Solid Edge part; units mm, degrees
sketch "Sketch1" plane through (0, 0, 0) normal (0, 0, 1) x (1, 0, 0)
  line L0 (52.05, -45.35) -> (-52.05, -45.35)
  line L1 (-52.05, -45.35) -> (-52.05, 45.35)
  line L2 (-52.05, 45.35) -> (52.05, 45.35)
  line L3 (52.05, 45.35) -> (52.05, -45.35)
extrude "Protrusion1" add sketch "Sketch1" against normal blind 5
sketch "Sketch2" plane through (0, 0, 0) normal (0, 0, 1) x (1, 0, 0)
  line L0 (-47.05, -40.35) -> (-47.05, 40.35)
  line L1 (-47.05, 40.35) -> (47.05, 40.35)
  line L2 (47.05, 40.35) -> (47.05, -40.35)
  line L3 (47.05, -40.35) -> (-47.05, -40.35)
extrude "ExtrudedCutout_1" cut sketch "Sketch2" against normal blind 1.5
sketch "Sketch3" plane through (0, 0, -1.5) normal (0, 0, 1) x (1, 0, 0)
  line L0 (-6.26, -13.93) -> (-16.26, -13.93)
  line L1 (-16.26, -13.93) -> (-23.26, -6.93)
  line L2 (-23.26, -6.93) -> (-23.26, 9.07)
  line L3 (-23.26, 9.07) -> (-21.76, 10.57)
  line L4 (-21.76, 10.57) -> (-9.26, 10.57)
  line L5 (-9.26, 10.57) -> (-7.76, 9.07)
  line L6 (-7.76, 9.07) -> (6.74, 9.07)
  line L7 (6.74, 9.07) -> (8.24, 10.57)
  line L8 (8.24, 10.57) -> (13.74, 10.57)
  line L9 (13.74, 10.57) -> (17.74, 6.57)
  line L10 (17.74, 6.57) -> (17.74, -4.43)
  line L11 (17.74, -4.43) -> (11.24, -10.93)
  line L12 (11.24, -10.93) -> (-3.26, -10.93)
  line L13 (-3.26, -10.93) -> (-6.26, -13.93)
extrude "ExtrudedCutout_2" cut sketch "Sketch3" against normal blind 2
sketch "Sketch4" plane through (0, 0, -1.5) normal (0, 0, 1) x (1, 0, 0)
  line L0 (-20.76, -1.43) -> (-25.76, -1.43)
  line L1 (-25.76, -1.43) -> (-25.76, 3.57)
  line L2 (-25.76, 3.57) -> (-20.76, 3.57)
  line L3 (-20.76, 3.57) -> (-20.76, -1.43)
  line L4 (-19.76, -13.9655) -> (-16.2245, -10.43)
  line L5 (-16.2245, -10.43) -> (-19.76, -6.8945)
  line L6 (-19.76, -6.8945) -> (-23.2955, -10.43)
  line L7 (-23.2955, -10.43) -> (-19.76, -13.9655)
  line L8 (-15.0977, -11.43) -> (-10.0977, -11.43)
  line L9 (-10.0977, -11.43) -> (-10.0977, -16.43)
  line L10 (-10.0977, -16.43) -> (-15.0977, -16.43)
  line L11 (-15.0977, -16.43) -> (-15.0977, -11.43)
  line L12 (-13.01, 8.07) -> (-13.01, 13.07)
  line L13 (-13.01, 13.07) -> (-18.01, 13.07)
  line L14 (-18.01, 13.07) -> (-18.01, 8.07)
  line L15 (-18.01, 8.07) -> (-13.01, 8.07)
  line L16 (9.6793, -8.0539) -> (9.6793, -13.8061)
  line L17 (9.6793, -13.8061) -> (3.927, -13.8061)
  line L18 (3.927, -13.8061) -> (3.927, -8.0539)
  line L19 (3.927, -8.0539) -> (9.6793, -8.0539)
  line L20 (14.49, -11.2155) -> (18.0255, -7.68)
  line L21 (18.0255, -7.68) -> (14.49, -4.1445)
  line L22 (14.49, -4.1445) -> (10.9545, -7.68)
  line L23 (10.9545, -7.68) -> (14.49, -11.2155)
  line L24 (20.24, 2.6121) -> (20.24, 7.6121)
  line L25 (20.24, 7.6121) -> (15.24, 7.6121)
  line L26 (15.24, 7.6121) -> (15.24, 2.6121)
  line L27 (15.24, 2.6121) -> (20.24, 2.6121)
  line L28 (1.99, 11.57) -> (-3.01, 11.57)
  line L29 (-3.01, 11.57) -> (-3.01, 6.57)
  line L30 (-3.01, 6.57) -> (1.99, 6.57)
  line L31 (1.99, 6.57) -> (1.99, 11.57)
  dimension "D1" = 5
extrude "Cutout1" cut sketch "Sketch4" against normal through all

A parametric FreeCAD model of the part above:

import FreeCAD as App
import Part
import Sketcher

V = App.Vector
Q = App.Units.Quantity

doc = App.newDocument("Part")
body = doc.addObject("PartDesign::Body", "Body")

# Sketch on XY plane
sketch1 = body.newObject("Sketcher::SketchObject", "Sketch")
sketch1.AttachmentSupport = (doc.getObject("XY_Plane"), [""])
sketch1.MapMode = "FlatFace"
sketch1.addGeometry([
    Part.LineSegment(V(-52, -45, 0), V(52, -45, 0)),
    Part.LineSegment(V(52, -45, 0), V(52, 45, 0)),
    Part.LineSegment(V(52, 45, 0), V(-52, 45, 0)),
    Part.LineSegment(V(-52, 45, 0), V(-52, -45, 0)),
], False)
sketch1.addConstraint([
    Sketcher.Constraint("Coincident", 0, 2, 1, 1),
    Sketcher.Constraint("Coincident", 1, 2, 2, 1),
    Sketcher.Constraint("Coincident", 2, 2, 3, 1),
    Sketcher.Constraint("Coincident", 3, 2, 0, 1),
    Sketcher.Constraint("Horizontal", 0),
    Sketcher.Constraint("Vertical", 1),
    Sketcher.Constraint("Horizontal", 2),
    Sketcher.Constraint("Vertical", 3),
    Sketcher.Constraint("Symmetric", 0, 2, 2, 2, -1, 1),
    Sketcher.Constraint("DistanceX", 0, 1, 0, 2, Q("104.1 mm")),
    Sketcher.Constraint("DistanceY", 1, 1, 1, 2, Q("90.7 mm")),
])
pad1 = body.newObject("PartDesign::Pad", "Pad")
pad1.Profile = sketch1
pad1.Length = 5
pad1.Reversed = True

# Sketch on XY plane
sketch2 = body.newObject("Sketcher::SketchObject", "Sketch001")
sketch2.AttachmentSupport = (doc.getObject("XY_Plane"), [""])
sketch2.MapMode = "FlatFace"
sketch2.addGeometry([
    Part.LineSegment(V(-47, 40, 0), V(-47, -40, 0)),
    Part.LineSegment(V(-47, -40, 0), V(47, -40, 0)),
    Part.LineSegment(V(47, -40, 0), V(47, 40, 0)),
    Part.LineSegment(V(47, 40, 0), V(-47, 40, 0)),
], False)
sketch2.addConstraint([
    Sketcher.Constraint("Coincident", 0, 2, 1, 1),
    Sketcher.Constraint("Coincident", 1, 2, 2, 1),
    Sketcher.Constraint("Coincident", 2, 2, 3, 1),
    Sketcher.Constraint("Coincident", 3, 2, 0, 1),
    Sketcher.Constraint("Vertical", 0),
    Sketcher.Constraint("Horizontal", 1),
    Sketcher.Constraint("Vertical", 2),
    Sketcher.Constraint("Horizontal", 3),
    Sketcher.Constraint("Symmetric", 0, 2, 2, 2, -1, 1),
    Sketcher.Constraint("DistanceX", 1, 1, 1, 2, Q("94.1 mm")),
    Sketcher.Constraint("DistanceY", 0, 2, 0, 1, Q("80.7 mm")),
])
pocket1 = body.newObject("PartDesign::Pocket", "Pocket")
pocket1.Profile = sketch2
pocket1.Length = 1.5

# Sketch on XY plane
sketch3 = body.newObject("Sketcher::SketchObject", "Sketch002")
sketch3.AttachmentSupport = (doc.getObject("XY_Plane"), [""])
sketch3.MapMode = "FlatFace"
sketch3.AttachmentOffset = App.Placement(V(0, 0, -1.5), App.Rotation())
sketch3.addGeometry([
    Part.LineSegment(V(-16.3, -13.9, 0), V(-6.3, -13.9, 0)),  # 0
    Part.LineSegment(V(-6.3, -13.9, 0), V(-3.3, -10.9, 0)),  # 1
    Part.LineSegment(V(-3.3, -10.9, 0), V(11.2, -10.9, 0)),  # 2
    Part.LineSegment(V(11.2, -10.9, 0), V(17.7, -4.4, 0)),  # 3
    Part.LineSegment(V(17.7, -4.4, 0), V(17.7, 6.6, 0)),  # 4
    Part.LineSegment(V(17.7, 6.6, 0), V(13.7, 10.6, 0)),  # 5
    Part.LineSegment(V(13.7, 10.6, 0), V(8.2, 10.6, 0)),  # 6
    Part.LineSegment(V(8.2, 10.6, 0), V(6.7, 9.1, 0)),  # 7
    Part.LineSegment(V(6.7, 9.1, 0), V(-7.8, 9.1, 0)),  # 8
    Part.LineSegment(V(-7.8, 9.1, 0), V(-9.3, 10.6, 0)),  # 9
    Part.LineSegment(V(-9.3, 10.6, 0), V(-21.8, 10.6, 0)),  # 10
    Part.LineSegment(V(-21.8, 10.6, 0), V(-23.3, 9.1, 0)),  # 11
    Part.LineSegment(V(-23.3, 9.1, 0), V(-23.3, -6.9, 0)),  # 12
    Part.LineSegment(V(-23.3, -6.9, 0), V(-16.3, -13.9, 0)),  # 13
], False)
sketch3.addConstraint([
    Sketcher.Constraint("Coincident", 0, 2, 1, 1),
    Sketcher.Constraint("Coincident", 1, 2, 2, 1),
    Sketcher.Constraint("Coincident", 2, 2, 3, 1),
    Sketcher.Constraint("Coincident", 3, 2, 4, 1),
    Sketcher.Constraint("Coincident", 4, 2, 5, 1),
    Sketcher.Constraint("Coincident", 5, 2, 6, 1),
    Sketcher.Constraint("Coincident", 6, 2, 7, 1),
    Sketcher.Constraint("Coincident", 7, 2, 8, 1),
    Sketcher.Constraint("Coincident", 8, 2, 9, 1),
    Sketcher.Constraint("Coincident", 9, 2, 10, 1),
    Sketcher.Constraint("Coincident", 10, 2, 11, 1),
    Sketcher.Constraint("Coincident", 11, 2, 12, 1),
    Sketcher.Constraint("Coincident", 12, 2, 13, 1),
    Sketcher.Constraint("Coincident", 13, 2, 0, 1),
    Sketcher.Constraint("Horizontal", 0),
    Sketcher.Constraint("Horizontal", 2),
    Sketcher.Constraint("Vertical", 4),
    Sketcher.Constraint("Horizontal", 6),
    Sketcher.Constraint("Horizontal", 8),
    Sketcher.Constraint("Horizontal", 10),
    Sketcher.Constraint("Vertical", 12),
    Sketcher.Constraint("Parallel", 1, 3),
    Sketcher.Constraint("Perpendicular", 3, 5),
    Sketcher.Constraint("Perpendicular", 5, 7),
    Sketcher.Constraint("Perpendicular", 7, 9),
    Sketcher.Constraint("Perpendicular", 9, 11),
    Sketcher.Constraint("Perpendicular", 11, 13),
    Sketcher.Constraint("Horizontal", 6, 2, 9, 2),
    Sketcher.Constraint("Horizontal", 8, 2, 11, 2),
    Sketcher.Constraint("Equal", 2, 8),
    Sketcher.Constraint("Equal", 7, 9),
    Sketcher.Constraint("DistanceX", 0, 1, 0, 2, Q("10 mm")),
    Sketcher.Constraint("DistanceY", 4, 1, 4, 2, Q("11 mm")),
    Sketcher.Constraint("DistanceY", 12, 2, 12, 1, Q("16 mm")),
    Sketcher.Constraint("DistanceX", 2, 1, 2, 2, Q("14.5 mm")),
    Sketcher.Constraint("DistanceX", 6, 2, 6, 1, Q("5.5 mm")),
    Sketcher.Constraint("DistanceX", 10, 2, 10, 1, Q("12.5 mm")),
    Sketcher.Constraint("DistanceX", 0, 2, 1, 2, Q("3 mm")),
    Sketcher.Constraint("DistanceX", 1, 2, 3, 2, Q("21 mm")),
    Sketcher.Constraint("DistanceX", 5, 2, 4, 2, Q("4 mm")),
    Sketcher.Constraint("DistanceX", 0, 2, -1, 1, Q("6.26 mm")),
    Sketcher.Constraint("DistanceY", 0, 2, -1, 1, Q("13.93 mm")),
])
pocket2 = body.newObject("PartDesign::Pocket", "Pocket001")
pocket2.Profile = sketch3
pocket2.Length = 2

# Sketch on XY plane
sketch4 = body.newObject("Sketcher::SketchObject", "Sketch003")
sketch4.AttachmentSupport = (doc.getObject("XY_Plane"), [""])
sketch4.MapMode = "FlatFace"
sketch4.AttachmentOffset = App.Placement(V(0, 0, -1.5), App.Rotation())
sketch4.addGeometry([
    Part.LineSegment(V(-25.8, -1.4, 0), V(-20.8, -1.4, 0)),  # 0
    Part.LineSegment(V(-20.8, -1.4, 0), V(-20.8, 3.6, 0)),  # 1
    Part.LineSegment(V(-20.8, 3.6, 0), V(-25.8, 3.6, 0)),  # 2
    Part.LineSegment(V(-25.8, 3.6, 0), V(-25.8, -1.4, 0)),  # 3
    Part.LineSegment(V(-23.3, -10.4, 0), V(-19.8, -14, 0)),  # 4
    Part.LineSegment(V(-19.8, -14, 0), V(-16.2, -10.4, 0)),  # 5
    Part.LineSegment(V(-16.2, -10.4, 0), V(-19.8, -6.9, 0)),  # 6
    Part.LineSegment(V(-19.8, -6.9, 0), V(-23.3, -10.4, 0)),  # 7
    Part.LineSegment(V(-10.1, -11.4, 0), V(-15.1, -11.4, 0)),  # 8
    Part.LineSegment(V(-15.1, -11.4, 0), V(-15.1, -16.4, 0)),  # 9
    Part.LineSegment(V(-15.1, -16.4, 0), V(-10.1, -16.4, 0)),  # 10
    Part.LineSegment(V(-10.1, -16.4, 0), V(-10.1, -11.4, 0)),  # 11
    Part.LineSegment(V(-18, 8.1, 0), V(-13, 8.1, 0)),  # 12
    Part.LineSegment(V(-13, 8.1, 0), V(-13, 13.1, 0)),  # 13
    Part.LineSegment(V(-13, 13.1, 0), V(-18, 13.1, 0)),  # 14
    Part.LineSegment(V(-18, 13.1, 0), V(-18, 8.1, 0)),  # 15
    Part.LineSegment(V(9.7, -13.8, 0), V(9.7, -8.1, 0)),  # 16
    Part.LineSegment(V(9.7, -8.1, 0), V(3.9, -8.1, 0)),  # 17
    Part.LineSegment(V(3.9, -8.1, 0), V(3.9, -13.8, 0)),  # 18
    Part.LineSegment(V(3.9, -13.8, 0), V(9.7, -13.8, 0)),  # 19
    Part.LineSegment(V(11, -7.7, 0), V(14.5, -11.2, 0)),  # 20
    Part.LineSegment(V(14.5, -11.2, 0), V(18, -7.7, 0)),  # 21
    Part.LineSegment(V(18, -7.7, 0), V(14.5, -4.1, 0)),  # 22
    Part.LineSegment(V(14.5, -4.1, 0), V(11, -7.7, 0)),  # 23
    Part.LineSegment(V(15.2, 2.6, 0), V(20.2, 2.6, 0)),  # 24
    Part.LineSegment(V(20.2, 2.6, 0), V(20.2, 7.6, 0)),  # 25
    Part.LineSegment(V(20.2, 7.6, 0), V(15.2, 7.6, 0)),  # 26
    Part.LineSegment(V(15.2, 7.6, 0), V(15.2, 2.6, 0)),  # 27
    Part.LineSegment(V(2, 6.6, 0), V(2, 11.6, 0)),  # 28
    Part.LineSegment(V(2, 11.6, 0), V(-3, 11.6, 0)),  # 29
    Part.LineSegment(V(-3, 11.6, 0), V(-3, 6.6, 0)),  # 30
    Part.LineSegment(V(-3, 6.6, 0), V(2, 6.6, 0)),  # 31
], False)
sketch4.addConstraint([
    Sketcher.Constraint("Coincident", 0, 2, 1, 1),
    Sketcher.Constraint("Coincident", 1, 2, 2, 1),
    Sketcher.Constraint("Coincident", 2, 2, 3, 1),
    Sketcher.Constraint("Coincident", 3, 2, 0, 1),
    Sketcher.Constraint("Coincident", 4, 2, 5, 1),
    Sketcher.Constraint("Coincident", 5, 2, 6, 1),
    Sketcher.Constraint("Coincident", 6, 2, 7, 1),
    Sketcher.Constraint("Coincident", 7, 2, 4, 1),
    Sketcher.Constraint("Coincident", 8, 2, 9, 1),
    Sketcher.Constraint("Coincident", 9, 2, 10, 1),
    Sketcher.Constraint("Coincident", 10, 2, 11, 1),
    Sketcher.Constraint("Coincident", 11, 2, 8, 1),
    Sketcher.Constraint("Coincident", 12, 2, 13, 1),
    Sketcher.Constraint("Coincident", 13, 2, 14, 1),
    Sketcher.Constraint("Coincident", 14, 2, 15, 1),
    Sketcher.Constraint("Coincident", 15, 2, 12, 1),
    Sketcher.Constraint("Coincident", 16, 2, 17, 1),
    Sketcher.Constraint("Coincident", 17, 2, 18, 1),
    Sketcher.Constraint("Coincident", 18, 2, 19, 1),
    Sketcher.Constraint("Coincident", 19, 2, 16, 1),
    Sketcher.Constraint("Coincident", 20, 2, 21, 1),
    Sketcher.Constraint("Coincident", 21, 2, 22, 1),
    Sketcher.Constraint("Coincident", 22, 2, 23, 1),
    Sketcher.Constraint("Coincident", 23, 2, 20, 1),
    Sketcher.Constraint("Coincident", 24, 2, 25, 1),
    Sketcher.Constraint("Coincident", 25, 2, 26, 1),
    Sketcher.Constraint("Coincident", 26, 2, 27, 1),
    Sketcher.Constraint("Coincident", 27, 2, 24, 1),
    Sketcher.Constraint("Coincident", 28, 2, 29, 1),
    Sketcher.Constraint("Coincident", 29, 2, 30, 1),
    Sketcher.Constraint("Coincident", 30, 2, 31, 1),
    Sketcher.Constraint("Coincident", 31, 2, 28, 1),
    Sketcher.Constraint("Horizontal", 0),
    Sketcher.Constraint("Vertical", 1),
    Sketcher.Constraint("Horizontal", 2),
    Sketcher.Constraint("Vertical", 3),
    Sketcher.Constraint("Horizontal", 8),
    Sketcher.Constraint("Vertical", 9),
    Sketcher.Constraint("Horizontal", 10),
    Sketcher.Constraint("Vertical", 11),
    Sketcher.Constraint("Horizontal", 12),
    Sketcher.Constraint("Vertical", 13),
    Sketcher.Constraint("Horizontal", 14),
    Sketcher.Constraint("Vertical", 15),
    Sketcher.Constraint("Vertical", 16),
    Sketcher.Constraint("Horizontal", 17),
    Sketcher.Constraint("Vertical", 18),
    Sketcher.Constraint("Horizontal", 19),
    Sketcher.Constraint("Horizontal", 24),
    Sketcher.Constraint("Vertical", 25),
    Sketcher.Constraint("Horizontal", 26),
    Sketcher.Constraint("Vertical", 27),
    Sketcher.Constraint("Vertical", 28),
    Sketcher.Constraint("Horizontal", 29),
    Sketcher.Constraint("Vertical", 30),
    Sketcher.Constraint("Horizontal", 31),
    Sketcher.Constraint("Perpendicular", 4, 5),
    Sketcher.Constraint("Perpendicular", 5, 6),
    Sketcher.Constraint("Perpendicular", 6, 7),
    Sketcher.Constraint("Perpendicular", 7, 20),
    Sketcher.Constraint("Perpendicular", 20, 21),
    Sketcher.Constraint("Perpendicular", 21, 22),
    Sketcher.Constraint("Perpendicular", 22, 23),
    Sketcher.Constraint("Horizontal", 5, 2, 7, 2),
    Sketcher.Constraint("Horizontal", 21, 2, 23, 2),
    Sketcher.Constraint("Vertical", 4, 2, 6, 2),
    Sketcher.Constraint("Equal", 2, 8),
    Sketcher.Constraint("Equal", 10, 12),
    Sketcher.Constraint("Equal", 14, 24),
    Sketcher.Constraint("Equal", 26, 29),
    Sketcher.Constraint("Equal", 31, 1),
    Sketcher.Constraint("Equal", 3, 9),
    Sketcher.Constraint("Equal", 11, 13),
    Sketcher.Constraint("Equal", 19, 16),
    Sketcher.Constraint("Equal", 15, 25),
    Sketcher.Constraint("Equal", 27, 28),
    Sketcher.Constraint("Equal", 7, 20),
    Sketcher.Constraint("DistanceX", 0, 1, 0, 2, Q("5 mm")),
    Sketcher.Constraint("Distance", 4, Q("5 mm")),
    Sketcher.Constraint("DistanceX", 0, 2, 4, 2, Q("1 mm")),
    Sketcher.Constraint("DistanceY", 5, 2, 0, 2, Q("9 mm")),
    Sketcher.Constraint("DistanceY", 8, 2, 5, 2, Q("1 mm")),
    Sketcher.Constraint("DistanceX", 13, 2, 28, 2, Q("15 mm")),
    Sketcher.Constraint("DistanceY", 1, 2, 12, 2, Q("4.5 mm")),
    Sketcher.Constraint("DistanceY", 28, 2, 13, 2, Q("1.5 mm")),
    Sketcher.Constraint("DistanceX", 0, 2, -1, 1, Q("20.76 mm")),
    Sketcher.Constraint("DistanceY", 0, 2, -1, 1, Q("1.43 mm")),
    Sketcher.Constraint("DistanceX", 12, 2, -1, 1, Q("13.01 mm")),
    Sketcher.Constraint("DistanceX", -1, 1, 20, 2, Q("14.49 mm")),
    Sketcher.Constraint("DistanceY", 21, 2, -1, 1, Q("7.68 mm")),
    Sketcher.Constraint("DistanceX", -1, 1, 24, 2, Q("20.24 mm")),
    Sketcher.Constraint("DistanceX", 17, 2, 17, 1, Q("5.7523 mm")),
    Sketcher.Constraint("DistanceY", 16, 2, -1, 1, Q("8.054 mm")),
    Sketcher.Constraint("DistanceX", -1, 1, 17, 2, Q("3.927 mm")),
    Sketcher.Constraint("DistanceY", -1, 1, 24, 2, Q("2.612 mm")),
    Sketcher.Constraint("DistanceX", 11, 2, 16, 2, Q("19.777 mm")),
])
pocket3 = body.newObject("PartDesign::Pocket", "Pocket002")
pocket3.Profile = sketch4
pocket3.Type = "ThroughAll"

doc.recompute()
